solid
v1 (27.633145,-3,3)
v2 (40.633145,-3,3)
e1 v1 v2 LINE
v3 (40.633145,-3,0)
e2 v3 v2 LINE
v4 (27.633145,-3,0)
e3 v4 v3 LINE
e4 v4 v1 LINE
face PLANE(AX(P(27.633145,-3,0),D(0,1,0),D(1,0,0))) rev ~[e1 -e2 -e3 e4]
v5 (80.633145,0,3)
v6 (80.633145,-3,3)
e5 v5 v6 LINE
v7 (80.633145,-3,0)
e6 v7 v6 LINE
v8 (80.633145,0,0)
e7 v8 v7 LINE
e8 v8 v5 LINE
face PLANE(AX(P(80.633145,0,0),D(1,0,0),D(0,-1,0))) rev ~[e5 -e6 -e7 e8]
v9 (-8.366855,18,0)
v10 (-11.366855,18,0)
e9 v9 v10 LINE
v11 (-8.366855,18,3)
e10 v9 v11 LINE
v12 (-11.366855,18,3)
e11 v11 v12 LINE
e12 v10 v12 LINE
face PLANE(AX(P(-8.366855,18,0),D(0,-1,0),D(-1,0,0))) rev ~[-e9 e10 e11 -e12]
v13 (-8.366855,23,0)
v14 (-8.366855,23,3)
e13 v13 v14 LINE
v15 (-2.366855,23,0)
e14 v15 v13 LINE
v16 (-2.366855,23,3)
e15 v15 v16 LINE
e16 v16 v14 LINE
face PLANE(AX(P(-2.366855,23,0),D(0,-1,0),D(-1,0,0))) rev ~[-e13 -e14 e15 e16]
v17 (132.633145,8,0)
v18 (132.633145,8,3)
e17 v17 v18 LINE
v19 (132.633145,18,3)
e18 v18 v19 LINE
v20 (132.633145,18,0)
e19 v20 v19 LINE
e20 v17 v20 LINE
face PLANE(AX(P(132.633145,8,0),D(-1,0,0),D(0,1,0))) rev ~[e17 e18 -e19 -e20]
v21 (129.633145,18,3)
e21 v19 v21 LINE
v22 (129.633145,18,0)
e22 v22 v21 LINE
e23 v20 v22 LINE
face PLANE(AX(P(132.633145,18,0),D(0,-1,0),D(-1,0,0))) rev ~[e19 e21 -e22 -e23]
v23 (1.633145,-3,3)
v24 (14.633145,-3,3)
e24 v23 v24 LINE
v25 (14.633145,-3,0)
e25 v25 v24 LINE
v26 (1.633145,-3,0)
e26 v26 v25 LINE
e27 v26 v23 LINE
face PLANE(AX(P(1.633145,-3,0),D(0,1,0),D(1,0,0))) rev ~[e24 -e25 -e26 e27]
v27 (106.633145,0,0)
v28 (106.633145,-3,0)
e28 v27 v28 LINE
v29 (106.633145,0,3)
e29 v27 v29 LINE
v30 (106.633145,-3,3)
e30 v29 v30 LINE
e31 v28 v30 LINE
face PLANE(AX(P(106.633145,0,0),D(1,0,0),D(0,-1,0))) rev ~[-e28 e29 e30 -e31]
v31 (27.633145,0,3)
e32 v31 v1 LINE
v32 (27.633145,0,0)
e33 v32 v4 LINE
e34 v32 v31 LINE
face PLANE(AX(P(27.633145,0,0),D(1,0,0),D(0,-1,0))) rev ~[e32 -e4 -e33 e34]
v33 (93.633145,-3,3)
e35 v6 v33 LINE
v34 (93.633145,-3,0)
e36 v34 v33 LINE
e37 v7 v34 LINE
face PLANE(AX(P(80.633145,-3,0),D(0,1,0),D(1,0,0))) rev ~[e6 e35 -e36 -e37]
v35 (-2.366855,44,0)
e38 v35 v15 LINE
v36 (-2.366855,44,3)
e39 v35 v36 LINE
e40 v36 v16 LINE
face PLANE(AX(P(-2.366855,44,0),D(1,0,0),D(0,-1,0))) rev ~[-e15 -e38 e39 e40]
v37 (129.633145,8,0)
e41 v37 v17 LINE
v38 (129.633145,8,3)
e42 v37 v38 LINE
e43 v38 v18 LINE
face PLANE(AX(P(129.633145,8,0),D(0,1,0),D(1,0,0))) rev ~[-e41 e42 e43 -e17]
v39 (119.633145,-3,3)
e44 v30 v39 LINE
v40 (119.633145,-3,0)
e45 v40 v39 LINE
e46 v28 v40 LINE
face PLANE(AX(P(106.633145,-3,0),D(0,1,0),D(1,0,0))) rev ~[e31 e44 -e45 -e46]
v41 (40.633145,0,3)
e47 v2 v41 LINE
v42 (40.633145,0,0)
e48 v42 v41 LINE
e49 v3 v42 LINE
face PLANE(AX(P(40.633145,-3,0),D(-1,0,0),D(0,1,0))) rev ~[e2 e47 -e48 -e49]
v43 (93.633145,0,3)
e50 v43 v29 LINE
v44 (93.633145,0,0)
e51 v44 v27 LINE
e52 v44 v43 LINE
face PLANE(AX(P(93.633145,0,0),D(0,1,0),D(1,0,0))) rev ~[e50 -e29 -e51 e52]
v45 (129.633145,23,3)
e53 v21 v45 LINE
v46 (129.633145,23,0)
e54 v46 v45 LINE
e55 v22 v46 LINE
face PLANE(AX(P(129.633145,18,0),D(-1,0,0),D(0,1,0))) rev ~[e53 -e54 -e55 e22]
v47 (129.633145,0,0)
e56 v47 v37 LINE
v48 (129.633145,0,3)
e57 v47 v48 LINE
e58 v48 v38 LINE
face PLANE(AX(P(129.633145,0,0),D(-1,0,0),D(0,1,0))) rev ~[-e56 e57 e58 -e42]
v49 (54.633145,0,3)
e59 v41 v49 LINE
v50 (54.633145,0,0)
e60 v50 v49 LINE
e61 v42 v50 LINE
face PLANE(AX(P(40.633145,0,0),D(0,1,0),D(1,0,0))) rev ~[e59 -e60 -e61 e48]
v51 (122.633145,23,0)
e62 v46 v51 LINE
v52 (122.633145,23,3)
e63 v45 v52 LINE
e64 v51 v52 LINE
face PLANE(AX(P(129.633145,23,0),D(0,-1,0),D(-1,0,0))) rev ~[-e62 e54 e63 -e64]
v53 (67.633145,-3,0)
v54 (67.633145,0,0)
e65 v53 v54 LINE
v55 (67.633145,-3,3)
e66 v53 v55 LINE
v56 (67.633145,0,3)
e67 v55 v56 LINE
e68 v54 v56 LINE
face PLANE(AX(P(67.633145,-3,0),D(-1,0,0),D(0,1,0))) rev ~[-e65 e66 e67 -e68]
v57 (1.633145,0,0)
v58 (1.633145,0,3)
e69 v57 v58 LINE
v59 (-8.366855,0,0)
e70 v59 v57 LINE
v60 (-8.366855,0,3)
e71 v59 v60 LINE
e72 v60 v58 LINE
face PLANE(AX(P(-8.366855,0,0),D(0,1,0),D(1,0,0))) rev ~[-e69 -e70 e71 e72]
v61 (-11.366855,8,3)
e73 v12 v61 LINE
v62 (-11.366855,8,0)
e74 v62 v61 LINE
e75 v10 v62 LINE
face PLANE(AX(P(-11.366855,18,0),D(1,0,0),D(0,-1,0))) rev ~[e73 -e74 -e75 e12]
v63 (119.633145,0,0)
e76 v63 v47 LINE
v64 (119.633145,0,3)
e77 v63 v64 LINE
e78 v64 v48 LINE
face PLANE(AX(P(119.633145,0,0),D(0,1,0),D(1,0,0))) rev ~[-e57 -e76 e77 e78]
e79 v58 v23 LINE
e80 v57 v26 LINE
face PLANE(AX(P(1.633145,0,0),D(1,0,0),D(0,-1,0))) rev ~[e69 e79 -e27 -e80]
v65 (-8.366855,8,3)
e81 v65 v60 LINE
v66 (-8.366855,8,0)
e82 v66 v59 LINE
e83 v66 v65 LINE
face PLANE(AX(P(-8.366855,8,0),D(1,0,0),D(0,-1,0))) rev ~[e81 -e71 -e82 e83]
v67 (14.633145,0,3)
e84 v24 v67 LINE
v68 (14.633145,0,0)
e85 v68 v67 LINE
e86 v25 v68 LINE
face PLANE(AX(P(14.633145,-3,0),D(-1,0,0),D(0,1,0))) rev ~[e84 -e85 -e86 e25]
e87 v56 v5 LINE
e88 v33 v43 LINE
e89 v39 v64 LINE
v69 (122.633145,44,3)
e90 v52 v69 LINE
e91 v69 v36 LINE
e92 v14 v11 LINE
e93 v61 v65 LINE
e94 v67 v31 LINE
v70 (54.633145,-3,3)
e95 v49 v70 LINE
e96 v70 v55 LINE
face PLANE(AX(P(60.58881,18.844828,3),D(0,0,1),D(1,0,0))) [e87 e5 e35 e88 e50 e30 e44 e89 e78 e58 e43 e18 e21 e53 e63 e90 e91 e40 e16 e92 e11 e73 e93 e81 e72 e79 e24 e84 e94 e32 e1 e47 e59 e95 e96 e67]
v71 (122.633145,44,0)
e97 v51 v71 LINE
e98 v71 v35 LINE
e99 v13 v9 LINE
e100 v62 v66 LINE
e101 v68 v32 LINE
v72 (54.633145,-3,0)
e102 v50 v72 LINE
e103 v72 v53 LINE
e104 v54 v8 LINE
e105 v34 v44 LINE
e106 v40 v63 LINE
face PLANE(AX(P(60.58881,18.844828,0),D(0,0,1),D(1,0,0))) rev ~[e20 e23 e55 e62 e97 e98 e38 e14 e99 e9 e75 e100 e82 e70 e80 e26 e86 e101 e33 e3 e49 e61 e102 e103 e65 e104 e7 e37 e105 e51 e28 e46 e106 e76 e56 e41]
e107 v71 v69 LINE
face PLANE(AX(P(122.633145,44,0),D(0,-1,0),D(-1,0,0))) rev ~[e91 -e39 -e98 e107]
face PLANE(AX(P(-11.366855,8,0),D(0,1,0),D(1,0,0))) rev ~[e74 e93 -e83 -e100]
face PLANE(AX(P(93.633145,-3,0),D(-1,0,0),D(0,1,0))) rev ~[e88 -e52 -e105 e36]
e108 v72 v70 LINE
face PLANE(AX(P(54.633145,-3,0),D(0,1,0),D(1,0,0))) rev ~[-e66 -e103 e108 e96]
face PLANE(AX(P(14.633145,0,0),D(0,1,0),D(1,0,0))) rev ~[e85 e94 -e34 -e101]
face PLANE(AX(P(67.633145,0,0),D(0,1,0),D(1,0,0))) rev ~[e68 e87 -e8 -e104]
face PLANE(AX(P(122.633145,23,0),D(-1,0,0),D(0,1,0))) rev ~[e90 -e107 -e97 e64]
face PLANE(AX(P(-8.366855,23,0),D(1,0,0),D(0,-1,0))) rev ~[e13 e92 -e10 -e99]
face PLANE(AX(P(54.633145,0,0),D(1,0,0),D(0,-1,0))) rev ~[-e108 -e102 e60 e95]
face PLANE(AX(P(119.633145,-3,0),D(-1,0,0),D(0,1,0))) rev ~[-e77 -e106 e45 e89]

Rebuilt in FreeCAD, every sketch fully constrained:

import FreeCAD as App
import Part
import Sketcher
from FreeCAD import Vector


def add_polygon(sketch, points):
    """Adds a closed chain of lines whose ends are joined by coincident constraints."""
    first, n = sketch.GeometryCount, len(points)
    for a, b in zip(points, points[1:] + points[:1]):
        sketch.addGeometry(Part.LineSegment(App.Vector(*a, 0), App.Vector(*b, 0)), False)
    for i in range(n):
        sketch.addConstraint(Sketcher.Constraint("Coincident", first + i, 2, first + (i + 1) % n, 1))

doc = App.newDocument("Part")
body = doc.addObject("PartDesign::Body", "Body")

# Sketch on XY plane
sketch1 = doc.addObject("Sketcher::SketchObject", "Sketch")
body.addObject(sketch1)
sketch1.AttachmentSupport = (doc.XY_Plane, [""])
sketch1.MapMode = "FlatFace"
add_polygon(sketch1, [(14.633145, 0), (27.633145, 0), (27.633145, -3), (40.633145, -3), (40.633145, 0), (54.633145, 0), (54.633145, -3), (67.633145, -3), (67.633145, 0), (80.633145, 0), (80.633145, -3), (93.633145, -3), (93.633145, 0), (106.633145, 0), (106.633145, -3), (119.633145, -3), (119.633145, 0), (129.633145, 0), (129.633145, 8), (132.633145, 8), (132.633145, 18), (129.633145, 18), (129.633145, 23), (122.633145, 23), (122.633145, 44), (-2.366855, 44), (-2.366855, 23), (-8.366855, 23), (-8.366855, 18), (-11.366855, 18), (-11.366855, 8), (-8.366855, 8), (-8.366855, 0), (1.633145, 0), (1.633145, -3), (14.633145, -3)])  # lines 0-35
sketch1.addConstraint([
    Sketcher.Constraint("Horizontal", 0),
    Sketcher.Constraint("Vertical", 1),
    Sketcher.Constraint("Horizontal", 2),
    Sketcher.Constraint("Vertical", 3),
    Sketcher.Constraint("Horizontal", 4),
    Sketcher.Constraint("Vertical", 5),
    Sketcher.Constraint("Horizontal", 6),
    Sketcher.Constraint("Vertical", 7),
    Sketcher.Constraint("Horizontal", 8),
    Sketcher.Constraint("Vertical", 9),
    Sketcher.Constraint("Horizontal", 10),
    Sketcher.Constraint("Vertical", 11),
    Sketcher.Constraint("Horizontal", 12),
    Sketcher.Constraint("Vertical", 13),
    Sketcher.Constraint("Horizontal", 14),
    Sketcher.Constraint("Vertical", 15),
    Sketcher.Constraint("Horizontal", 16),
    Sketcher.Constraint("Vertical", 17),
    Sketcher.Constraint("Horizontal", 18),
    Sketcher.Constraint("Vertical", 19),
    Sketcher.Constraint("Horizontal", 20),
    Sketcher.Constraint("Vertical", 21),
    Sketcher.Constraint("Horizontal", 22),
    Sketcher.Constraint("Vertical", 23),
    Sketcher.Constraint("Horizontal", 24),
    Sketcher.Constraint("Vertical", 25),
    Sketcher.Constraint("Horizontal", 26),
    Sketcher.Constraint("Vertical", 27),
    Sketcher.Constraint("Horizontal", 28),
    Sketcher.Constraint("Vertical", 29),
    Sketcher.Constraint("Horizontal", 30),
    Sketcher.Constraint("Vertical", 31),
    Sketcher.Constraint("Horizontal", 32),
    Sketcher.Constraint("Vertical", 33),
    Sketcher.Constraint("Horizontal", 34),
    Sketcher.Constraint("Vertical", 35),
    Sketcher.Constraint("PointOnObject", 0, 2, -1),
    Sketcher.Constraint("PointOnObject", 3, 2, -1),
    Sketcher.Constraint("PointOnObject", 7, 2, -1),
    Sketcher.Constraint("PointOnObject", 11, 2, -1),
    Sketcher.Constraint("PointOnObject", 15, 2, -1),
    Sketcher.Constraint("PointOnObject", 31, 2, -1),
    Sketcher.Constraint("Horizontal", 2, 2, 5, 2),
    Sketcher.Constraint("Horizontal", 6, 2, 9, 2),
    Sketcher.Constraint("Horizontal", 10, 2, 13, 2),
    Sketcher.Constraint("Horizontal", 22, 2, 25, 2),
    Sketcher.Constraint("Horizontal", 20, 2, 27, 2),
    Sketcher.Constraint("Horizontal", 18, 2, 29, 2),
    Sketcher.Constraint("Horizontal", 14, 2, 33, 2),
    Sketcher.Constraint("Vertical", 17, 2, 20, 2),
    Sketcher.Constraint("Vertical", 27, 2, 30, 2),
    Sketcher.Constraint("Equal", 0, 2),
    Sketcher.Constraint("Equal", 2, 6),
    Sketcher.Constraint("Equal", 6, 8),
    Sketcher.Constraint("Equal", 8, 10),
    Sketcher.Constraint("Equal", 10, 12),
    Sketcher.Constraint("Equal", 12, 14),
    Sketcher.Constraint("Equal", 20, 28),
    Sketcher.Constraint("Equal", 16, 32),
    Sketcher.Constraint("Equal", 14, 34),
    Sketcher.Constraint("Equal", 30, 1),
    Sketcher.Constraint("Equal", 32, 19),
    Sketcher.Constraint("DistanceX", 0, 1, 0, 2, 13.0),
    Sketcher.Constraint("DistanceX", 4, 1, 4, 2, 14.0),
    Sketcher.Constraint("DistanceX", 16, 1, 16, 2, 10.0),
    Sketcher.Constraint("DistanceX", 18, 1, 18, 2, 3.0),
    Sketcher.Constraint("DistanceX", 22, 2, 22, 1, 7.0),
    Sketcher.Constraint("DistanceX", 24, 2, 24, 1, 125.0),
    Sketcher.Constraint("DistanceY", 17, 1, 17, 2, 8.0),
    Sketcher.Constraint("DistanceY", 21, 1, 21, 2, 5.0),
    Sketcher.Constraint("DistanceY", 23, 1, 23, 2, 21.0),
    Sketcher.Constraint("DistanceX", -1, 1, 0, 2, 27.633145),
])
pad1 = doc.addObject("PartDesign::Pad", "Pad")
body.addObject(pad1)
pad1.Profile = sketch1
pad1.Length = 3

doc.recompute()
